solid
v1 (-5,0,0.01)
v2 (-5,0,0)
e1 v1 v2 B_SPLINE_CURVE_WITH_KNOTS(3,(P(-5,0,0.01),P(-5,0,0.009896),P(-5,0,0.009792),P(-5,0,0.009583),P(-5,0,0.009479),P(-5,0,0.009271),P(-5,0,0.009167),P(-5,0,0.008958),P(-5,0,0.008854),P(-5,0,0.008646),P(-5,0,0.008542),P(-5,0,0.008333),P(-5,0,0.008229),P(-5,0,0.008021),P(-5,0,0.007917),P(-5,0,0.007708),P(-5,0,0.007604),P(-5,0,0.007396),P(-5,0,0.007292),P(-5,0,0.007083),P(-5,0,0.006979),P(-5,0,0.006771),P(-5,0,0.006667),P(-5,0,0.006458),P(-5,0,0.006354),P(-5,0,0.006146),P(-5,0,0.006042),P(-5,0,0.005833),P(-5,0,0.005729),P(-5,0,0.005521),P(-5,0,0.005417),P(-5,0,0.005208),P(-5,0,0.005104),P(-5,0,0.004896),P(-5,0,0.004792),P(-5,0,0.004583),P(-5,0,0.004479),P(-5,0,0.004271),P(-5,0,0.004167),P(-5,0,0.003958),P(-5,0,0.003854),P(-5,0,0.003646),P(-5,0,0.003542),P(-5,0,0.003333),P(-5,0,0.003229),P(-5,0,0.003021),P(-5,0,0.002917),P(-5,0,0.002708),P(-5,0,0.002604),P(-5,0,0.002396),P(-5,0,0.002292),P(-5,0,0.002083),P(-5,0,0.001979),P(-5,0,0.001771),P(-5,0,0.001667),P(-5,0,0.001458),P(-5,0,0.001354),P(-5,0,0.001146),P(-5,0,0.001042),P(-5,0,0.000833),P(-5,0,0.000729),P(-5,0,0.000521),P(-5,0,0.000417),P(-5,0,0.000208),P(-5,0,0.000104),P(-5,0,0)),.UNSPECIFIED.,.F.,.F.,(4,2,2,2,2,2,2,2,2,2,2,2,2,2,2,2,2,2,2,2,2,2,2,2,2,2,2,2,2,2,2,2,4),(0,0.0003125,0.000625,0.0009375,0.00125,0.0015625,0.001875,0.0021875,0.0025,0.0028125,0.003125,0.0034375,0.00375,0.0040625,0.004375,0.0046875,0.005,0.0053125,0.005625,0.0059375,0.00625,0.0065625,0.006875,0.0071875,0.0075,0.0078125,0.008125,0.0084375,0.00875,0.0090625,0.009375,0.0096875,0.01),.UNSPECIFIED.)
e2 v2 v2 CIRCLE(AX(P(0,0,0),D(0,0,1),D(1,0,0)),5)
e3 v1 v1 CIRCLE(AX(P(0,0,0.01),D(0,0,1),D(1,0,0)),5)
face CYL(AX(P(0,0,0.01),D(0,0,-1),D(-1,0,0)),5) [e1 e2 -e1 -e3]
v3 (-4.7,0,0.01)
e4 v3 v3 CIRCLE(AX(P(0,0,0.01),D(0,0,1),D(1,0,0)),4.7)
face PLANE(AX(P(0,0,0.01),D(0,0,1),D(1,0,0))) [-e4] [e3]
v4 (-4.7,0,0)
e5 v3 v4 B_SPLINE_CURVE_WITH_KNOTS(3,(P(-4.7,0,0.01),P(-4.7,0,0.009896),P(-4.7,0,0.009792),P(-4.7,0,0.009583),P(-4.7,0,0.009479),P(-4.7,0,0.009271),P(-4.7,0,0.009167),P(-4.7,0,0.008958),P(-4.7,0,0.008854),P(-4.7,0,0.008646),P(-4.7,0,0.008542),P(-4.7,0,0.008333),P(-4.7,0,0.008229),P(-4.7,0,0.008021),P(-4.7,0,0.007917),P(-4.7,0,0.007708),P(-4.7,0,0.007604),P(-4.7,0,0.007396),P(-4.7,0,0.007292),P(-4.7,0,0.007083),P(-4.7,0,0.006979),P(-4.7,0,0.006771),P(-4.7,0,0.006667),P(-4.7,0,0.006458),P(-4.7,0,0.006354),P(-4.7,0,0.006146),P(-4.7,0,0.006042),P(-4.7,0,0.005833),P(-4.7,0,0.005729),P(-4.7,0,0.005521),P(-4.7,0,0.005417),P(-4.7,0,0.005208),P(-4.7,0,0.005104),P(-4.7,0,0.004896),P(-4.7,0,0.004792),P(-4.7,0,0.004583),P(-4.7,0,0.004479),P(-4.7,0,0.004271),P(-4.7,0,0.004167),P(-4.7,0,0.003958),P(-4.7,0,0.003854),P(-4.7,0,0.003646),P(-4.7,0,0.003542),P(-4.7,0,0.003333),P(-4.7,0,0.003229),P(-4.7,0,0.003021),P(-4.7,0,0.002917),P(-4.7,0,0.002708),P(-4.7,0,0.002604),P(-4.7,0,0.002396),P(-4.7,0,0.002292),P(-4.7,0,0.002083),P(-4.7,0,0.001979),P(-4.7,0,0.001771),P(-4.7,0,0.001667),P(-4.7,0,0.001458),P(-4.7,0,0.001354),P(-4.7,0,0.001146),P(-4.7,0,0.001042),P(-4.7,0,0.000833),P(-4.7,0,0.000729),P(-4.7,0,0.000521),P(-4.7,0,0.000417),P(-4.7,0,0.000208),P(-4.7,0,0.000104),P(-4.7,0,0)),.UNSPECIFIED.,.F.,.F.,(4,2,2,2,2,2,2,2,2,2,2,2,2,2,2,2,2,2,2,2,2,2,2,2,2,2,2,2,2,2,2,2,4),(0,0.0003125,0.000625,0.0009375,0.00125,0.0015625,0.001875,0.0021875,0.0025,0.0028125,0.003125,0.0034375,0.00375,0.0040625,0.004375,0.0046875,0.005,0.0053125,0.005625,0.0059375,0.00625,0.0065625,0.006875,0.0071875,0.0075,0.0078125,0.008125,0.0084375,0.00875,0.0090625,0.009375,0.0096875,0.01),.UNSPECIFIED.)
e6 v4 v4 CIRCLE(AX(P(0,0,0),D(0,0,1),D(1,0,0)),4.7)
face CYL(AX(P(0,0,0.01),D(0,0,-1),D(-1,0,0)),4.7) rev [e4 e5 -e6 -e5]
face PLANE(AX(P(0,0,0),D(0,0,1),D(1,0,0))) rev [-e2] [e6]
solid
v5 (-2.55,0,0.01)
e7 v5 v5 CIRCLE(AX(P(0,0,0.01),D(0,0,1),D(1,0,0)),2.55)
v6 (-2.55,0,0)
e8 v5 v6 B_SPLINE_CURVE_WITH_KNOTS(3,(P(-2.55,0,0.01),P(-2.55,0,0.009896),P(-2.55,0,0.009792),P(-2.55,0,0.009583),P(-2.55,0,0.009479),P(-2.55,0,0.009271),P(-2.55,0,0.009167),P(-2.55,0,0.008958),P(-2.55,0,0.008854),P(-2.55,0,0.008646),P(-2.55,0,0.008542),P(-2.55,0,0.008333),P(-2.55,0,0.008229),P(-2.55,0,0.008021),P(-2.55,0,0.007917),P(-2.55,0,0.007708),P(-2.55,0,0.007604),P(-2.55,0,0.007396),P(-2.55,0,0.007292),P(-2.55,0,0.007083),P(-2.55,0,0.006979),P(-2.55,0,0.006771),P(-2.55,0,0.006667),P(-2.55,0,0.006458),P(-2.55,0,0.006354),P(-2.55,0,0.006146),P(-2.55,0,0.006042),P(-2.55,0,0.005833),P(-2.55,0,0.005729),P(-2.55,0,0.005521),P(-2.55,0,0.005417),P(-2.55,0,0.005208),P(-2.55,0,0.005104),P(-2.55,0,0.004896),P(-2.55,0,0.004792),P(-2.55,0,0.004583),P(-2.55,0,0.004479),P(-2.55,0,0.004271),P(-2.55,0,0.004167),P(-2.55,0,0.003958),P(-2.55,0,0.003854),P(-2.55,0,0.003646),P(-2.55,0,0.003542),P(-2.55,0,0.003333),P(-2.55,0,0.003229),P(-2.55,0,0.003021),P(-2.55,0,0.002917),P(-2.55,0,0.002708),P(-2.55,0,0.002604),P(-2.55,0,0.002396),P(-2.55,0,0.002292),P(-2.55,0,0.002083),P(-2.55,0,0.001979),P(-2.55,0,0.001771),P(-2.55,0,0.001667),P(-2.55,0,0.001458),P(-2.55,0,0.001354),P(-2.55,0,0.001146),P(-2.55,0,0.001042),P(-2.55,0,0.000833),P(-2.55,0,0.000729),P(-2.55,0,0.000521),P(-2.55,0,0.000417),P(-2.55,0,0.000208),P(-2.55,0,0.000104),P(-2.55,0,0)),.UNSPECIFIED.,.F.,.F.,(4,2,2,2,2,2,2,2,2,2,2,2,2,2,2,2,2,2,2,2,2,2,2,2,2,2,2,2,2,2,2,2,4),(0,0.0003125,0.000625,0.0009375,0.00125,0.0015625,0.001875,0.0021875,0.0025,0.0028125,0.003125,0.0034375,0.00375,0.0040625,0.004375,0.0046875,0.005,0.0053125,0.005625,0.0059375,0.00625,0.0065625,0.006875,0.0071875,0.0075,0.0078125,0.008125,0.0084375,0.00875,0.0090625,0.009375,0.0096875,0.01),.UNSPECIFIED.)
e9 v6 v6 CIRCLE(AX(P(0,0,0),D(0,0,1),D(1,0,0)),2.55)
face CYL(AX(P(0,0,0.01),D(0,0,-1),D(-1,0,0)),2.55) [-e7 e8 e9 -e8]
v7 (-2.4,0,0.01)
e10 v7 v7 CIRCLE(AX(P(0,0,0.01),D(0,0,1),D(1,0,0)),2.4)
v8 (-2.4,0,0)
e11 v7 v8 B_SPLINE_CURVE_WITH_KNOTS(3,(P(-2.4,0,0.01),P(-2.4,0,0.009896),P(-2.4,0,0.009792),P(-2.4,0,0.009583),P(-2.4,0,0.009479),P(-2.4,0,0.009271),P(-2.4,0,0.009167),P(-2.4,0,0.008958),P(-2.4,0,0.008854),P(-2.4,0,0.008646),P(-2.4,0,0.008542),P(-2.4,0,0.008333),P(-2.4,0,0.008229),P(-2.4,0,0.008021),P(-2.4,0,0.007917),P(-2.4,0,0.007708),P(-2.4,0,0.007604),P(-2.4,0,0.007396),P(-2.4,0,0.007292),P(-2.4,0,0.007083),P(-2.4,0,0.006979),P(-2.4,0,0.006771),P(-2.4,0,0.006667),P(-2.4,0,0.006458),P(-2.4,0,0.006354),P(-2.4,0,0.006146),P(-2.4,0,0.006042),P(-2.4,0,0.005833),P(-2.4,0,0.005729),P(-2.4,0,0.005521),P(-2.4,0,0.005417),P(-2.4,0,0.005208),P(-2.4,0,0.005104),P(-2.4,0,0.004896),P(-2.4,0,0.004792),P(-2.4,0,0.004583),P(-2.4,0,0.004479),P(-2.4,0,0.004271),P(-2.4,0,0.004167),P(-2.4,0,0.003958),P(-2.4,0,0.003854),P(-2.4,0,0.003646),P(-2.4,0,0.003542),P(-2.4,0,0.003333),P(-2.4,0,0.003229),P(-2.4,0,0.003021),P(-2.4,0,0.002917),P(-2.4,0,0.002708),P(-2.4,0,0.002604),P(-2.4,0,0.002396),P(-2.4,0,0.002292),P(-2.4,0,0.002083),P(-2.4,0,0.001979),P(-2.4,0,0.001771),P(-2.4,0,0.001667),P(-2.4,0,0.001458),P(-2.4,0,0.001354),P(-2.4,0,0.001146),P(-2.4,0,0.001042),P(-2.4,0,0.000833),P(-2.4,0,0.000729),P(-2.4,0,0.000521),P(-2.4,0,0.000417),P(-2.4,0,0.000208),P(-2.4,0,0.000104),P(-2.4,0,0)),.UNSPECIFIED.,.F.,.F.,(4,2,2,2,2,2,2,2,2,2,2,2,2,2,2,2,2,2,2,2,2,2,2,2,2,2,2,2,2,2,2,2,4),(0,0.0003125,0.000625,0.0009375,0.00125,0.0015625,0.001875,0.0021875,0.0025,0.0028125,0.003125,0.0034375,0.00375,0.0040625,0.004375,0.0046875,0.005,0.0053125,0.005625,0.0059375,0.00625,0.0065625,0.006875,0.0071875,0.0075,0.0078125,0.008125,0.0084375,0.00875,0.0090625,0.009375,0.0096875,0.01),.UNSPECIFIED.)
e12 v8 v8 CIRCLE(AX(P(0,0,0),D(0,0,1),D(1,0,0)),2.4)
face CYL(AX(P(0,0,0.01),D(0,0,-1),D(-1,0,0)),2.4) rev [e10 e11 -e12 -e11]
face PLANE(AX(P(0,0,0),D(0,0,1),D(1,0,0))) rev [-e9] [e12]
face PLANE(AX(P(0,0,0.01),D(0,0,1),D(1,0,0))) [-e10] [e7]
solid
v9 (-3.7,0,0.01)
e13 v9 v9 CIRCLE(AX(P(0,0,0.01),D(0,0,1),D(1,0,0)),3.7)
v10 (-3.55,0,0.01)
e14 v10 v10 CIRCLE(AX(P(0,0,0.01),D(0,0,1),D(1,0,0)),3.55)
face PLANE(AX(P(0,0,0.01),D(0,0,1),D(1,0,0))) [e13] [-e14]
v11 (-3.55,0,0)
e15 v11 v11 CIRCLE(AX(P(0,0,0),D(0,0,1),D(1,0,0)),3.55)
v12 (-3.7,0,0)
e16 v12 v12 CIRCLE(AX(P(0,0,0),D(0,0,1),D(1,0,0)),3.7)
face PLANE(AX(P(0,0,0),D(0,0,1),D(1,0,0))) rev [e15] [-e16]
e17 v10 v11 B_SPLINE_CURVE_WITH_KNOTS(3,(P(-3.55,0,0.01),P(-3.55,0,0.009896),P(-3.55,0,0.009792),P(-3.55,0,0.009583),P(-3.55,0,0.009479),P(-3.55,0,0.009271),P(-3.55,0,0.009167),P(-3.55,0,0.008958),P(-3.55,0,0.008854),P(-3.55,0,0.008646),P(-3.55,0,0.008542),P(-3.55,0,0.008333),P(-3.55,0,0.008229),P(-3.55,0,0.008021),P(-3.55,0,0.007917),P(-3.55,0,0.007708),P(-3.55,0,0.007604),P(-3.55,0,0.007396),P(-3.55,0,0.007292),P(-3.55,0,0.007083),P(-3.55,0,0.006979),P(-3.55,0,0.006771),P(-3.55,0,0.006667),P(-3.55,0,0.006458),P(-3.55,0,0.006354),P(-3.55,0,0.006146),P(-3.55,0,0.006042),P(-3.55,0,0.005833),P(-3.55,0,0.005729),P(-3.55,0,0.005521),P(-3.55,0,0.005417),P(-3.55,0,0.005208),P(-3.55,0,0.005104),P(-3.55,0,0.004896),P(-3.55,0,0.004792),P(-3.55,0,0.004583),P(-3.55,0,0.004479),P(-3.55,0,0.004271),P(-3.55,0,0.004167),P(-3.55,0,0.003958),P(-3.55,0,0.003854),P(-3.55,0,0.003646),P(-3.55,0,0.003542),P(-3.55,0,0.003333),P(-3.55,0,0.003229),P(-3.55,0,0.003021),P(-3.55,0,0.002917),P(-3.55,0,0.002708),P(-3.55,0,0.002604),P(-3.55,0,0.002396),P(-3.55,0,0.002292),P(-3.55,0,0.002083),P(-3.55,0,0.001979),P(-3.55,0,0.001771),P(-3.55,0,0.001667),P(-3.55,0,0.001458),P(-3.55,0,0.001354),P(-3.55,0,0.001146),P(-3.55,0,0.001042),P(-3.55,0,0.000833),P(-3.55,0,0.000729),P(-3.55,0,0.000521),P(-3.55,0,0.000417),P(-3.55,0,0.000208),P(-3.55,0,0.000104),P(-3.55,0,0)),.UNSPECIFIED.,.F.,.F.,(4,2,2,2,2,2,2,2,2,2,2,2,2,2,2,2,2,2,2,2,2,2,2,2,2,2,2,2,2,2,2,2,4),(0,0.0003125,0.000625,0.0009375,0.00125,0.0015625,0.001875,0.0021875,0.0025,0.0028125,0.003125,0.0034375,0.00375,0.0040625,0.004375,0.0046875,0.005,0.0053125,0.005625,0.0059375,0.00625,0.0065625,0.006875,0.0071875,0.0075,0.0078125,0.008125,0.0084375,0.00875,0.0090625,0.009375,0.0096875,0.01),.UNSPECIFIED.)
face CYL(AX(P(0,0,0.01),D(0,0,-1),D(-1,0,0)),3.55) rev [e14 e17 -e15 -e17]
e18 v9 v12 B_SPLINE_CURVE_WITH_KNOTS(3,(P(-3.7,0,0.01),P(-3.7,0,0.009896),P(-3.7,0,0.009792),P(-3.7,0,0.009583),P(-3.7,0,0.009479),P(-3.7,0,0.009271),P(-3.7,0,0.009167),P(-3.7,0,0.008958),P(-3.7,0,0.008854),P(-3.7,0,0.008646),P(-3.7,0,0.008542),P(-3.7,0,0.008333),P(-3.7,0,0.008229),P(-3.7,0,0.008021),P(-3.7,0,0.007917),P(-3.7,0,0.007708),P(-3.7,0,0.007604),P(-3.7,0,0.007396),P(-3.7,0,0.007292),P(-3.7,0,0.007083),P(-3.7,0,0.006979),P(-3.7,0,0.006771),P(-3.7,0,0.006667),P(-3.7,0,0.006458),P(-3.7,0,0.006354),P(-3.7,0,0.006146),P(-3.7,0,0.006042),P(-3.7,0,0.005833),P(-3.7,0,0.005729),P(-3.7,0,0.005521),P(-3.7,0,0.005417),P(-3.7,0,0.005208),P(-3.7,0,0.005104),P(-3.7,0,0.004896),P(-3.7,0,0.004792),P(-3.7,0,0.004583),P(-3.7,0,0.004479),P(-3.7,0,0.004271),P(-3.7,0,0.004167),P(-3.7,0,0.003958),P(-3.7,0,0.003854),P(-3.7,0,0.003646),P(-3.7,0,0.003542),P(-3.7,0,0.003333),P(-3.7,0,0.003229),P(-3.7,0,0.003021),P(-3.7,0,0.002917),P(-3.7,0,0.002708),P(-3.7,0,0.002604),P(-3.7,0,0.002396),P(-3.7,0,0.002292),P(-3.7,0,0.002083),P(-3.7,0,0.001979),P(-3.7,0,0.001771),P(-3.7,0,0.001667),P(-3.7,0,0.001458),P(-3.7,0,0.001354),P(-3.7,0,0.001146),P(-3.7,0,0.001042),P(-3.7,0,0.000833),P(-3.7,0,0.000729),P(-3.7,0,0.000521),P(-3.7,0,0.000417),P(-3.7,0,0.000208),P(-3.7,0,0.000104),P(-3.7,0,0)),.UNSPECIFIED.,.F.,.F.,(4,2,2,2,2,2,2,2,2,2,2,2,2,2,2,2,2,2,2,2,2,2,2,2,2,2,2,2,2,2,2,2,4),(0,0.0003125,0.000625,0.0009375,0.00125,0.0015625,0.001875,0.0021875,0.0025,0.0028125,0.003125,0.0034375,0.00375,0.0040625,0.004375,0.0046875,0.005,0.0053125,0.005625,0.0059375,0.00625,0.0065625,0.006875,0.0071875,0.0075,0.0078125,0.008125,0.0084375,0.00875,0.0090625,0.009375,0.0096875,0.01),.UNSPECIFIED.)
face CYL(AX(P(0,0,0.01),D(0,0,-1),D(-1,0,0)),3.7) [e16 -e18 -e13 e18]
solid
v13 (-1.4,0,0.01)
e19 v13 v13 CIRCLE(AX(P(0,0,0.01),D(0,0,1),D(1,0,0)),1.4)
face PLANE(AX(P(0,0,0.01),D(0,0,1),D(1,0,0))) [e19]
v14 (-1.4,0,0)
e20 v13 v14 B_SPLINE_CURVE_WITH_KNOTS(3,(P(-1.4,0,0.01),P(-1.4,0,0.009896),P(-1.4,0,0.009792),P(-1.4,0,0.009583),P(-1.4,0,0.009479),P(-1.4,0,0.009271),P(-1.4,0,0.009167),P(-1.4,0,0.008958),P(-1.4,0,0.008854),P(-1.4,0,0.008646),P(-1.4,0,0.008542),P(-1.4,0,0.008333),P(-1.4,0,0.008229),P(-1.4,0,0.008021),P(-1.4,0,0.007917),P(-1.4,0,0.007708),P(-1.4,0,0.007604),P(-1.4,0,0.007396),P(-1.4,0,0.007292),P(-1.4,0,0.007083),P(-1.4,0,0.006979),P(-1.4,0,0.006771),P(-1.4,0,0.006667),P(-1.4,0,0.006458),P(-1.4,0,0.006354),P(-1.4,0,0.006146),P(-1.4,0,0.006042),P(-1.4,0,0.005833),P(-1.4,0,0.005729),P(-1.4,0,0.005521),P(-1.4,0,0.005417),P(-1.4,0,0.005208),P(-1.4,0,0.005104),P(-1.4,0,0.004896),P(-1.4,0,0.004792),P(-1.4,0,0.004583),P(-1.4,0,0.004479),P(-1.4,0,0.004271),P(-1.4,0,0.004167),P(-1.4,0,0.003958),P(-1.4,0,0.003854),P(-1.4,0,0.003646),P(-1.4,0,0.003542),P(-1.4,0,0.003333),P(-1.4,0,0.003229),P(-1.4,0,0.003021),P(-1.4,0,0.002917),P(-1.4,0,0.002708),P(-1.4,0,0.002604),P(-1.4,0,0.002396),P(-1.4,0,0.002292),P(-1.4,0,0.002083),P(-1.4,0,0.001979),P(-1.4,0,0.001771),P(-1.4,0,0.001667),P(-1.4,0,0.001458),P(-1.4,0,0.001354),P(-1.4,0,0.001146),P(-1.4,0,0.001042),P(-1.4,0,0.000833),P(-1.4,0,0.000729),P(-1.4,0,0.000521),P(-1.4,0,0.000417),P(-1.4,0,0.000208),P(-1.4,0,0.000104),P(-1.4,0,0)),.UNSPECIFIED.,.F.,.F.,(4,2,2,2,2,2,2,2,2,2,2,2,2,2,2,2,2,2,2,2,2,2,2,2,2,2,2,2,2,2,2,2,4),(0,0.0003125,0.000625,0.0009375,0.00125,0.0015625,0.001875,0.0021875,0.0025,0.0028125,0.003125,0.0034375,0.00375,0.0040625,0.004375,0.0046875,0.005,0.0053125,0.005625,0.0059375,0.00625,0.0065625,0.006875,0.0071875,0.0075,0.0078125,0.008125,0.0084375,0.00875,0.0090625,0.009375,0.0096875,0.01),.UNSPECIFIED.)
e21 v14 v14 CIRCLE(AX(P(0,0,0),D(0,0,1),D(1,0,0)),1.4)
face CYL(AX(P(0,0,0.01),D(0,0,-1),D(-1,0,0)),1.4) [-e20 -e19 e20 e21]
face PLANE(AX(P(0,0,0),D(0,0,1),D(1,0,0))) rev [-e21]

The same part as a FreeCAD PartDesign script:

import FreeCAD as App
import Part
import Sketcher

V = App.Vector
Q = App.Units.Quantity

doc = App.newDocument("Part")
body = doc.addObject("PartDesign::Body", "Body")

sketch1 = doc.addObject("Sketcher::SketchObject", "Sketch")
body.addObject(sketch1)
sketch1.AttachmentSupport = (doc.XY_Plane, [""])
sketch1.MapMode = "FlatFace"
sketch1.addGeometry([
    Part.Circle(V(0, 0, 0), V(0, 0, 1), 5),
    Part.Circle(V(0, 0, 0), V(0, 0, 1), 4.7),
], False)
sketch1.addConstraint([
    Sketcher.Constraint("Coincident", 0, 3, -1, 1),
    Sketcher.Constraint("Coincident", 1, 3, -1, 1),
    Sketcher.Constraint("Diameter", 0, Q("10 mm")),
    Sketcher.Constraint("Diameter", 1, Q("9.4 mm")),
])
pad1 = doc.addObject("PartDesign::Pad", "Pad")
body.addObject(pad1)
pad1.Profile = sketch1
pad1.Length = 0.01
body2 = doc.addObject("PartDesign::Body", "Body001")

sketch2 = doc.addObject("Sketcher::SketchObject", "Sketch001")
body2.addObject(sketch2)
sketch2.AttachmentSupport = (doc.getObject("XY_Plane001"), [""])
sketch2.MapMode = "FlatFace"
sketch2.addGeometry([
    Part.Circle(V(0, 0, 0), V(0, 0, 1), 3.7),
    Part.Circle(V(0, 0, 0), V(0, 0, 1), 3.55),
], False)
sketch2.addConstraint([
    Sketcher.Constraint("Coincident", 0, 3, -1, 1),
    Sketcher.Constraint("Coincident", 1, 3, -1, 1),
    Sketcher.Constraint("Diameter", 0, Q("7.4 mm")),
    Sketcher.Constraint("Diameter", 1, Q("7.1 mm")),
])
pad2 = doc.addObject("PartDesign::Pad", "Pad001")
body2.addObject(pad2)
pad2.Profile = sketch2
pad2.Length = 0.01
body3 = doc.addObject("PartDesign::Body", "Body002")

sketch3 = doc.addObject("Sketcher::SketchObject", "Sketch002")
body3.addObject(sketch3)
sketch3.AttachmentSupport = (doc.getObject("XY_Plane002"), [""])
sketch3.MapMode = "FlatFace"
sketch3.addGeometry([
    Part.Circle(V(0, 0, 0), V(0, 0, 1), 2.55),
    Part.Circle(V(0, 0, 0), V(0, 0, 1), 2.4),
], False)
sketch3.addConstraint([
    Sketcher.Constraint("Coincident", 0, 3, -1, 1),
    Sketcher.Constraint("Coincident", 1, 3, -1, 1),
    Sketcher.Constraint("Diameter", 0, Q("5.1 mm")),
    Sketcher.Constraint("Diameter", 1, Q("4.8 mm")),
])
pad3 = doc.addObject("PartDesign::Pad", "Pad002")
body3.addObject(pad3)
pad3.Profile = sketch3
pad3.Length = 0.01
body4 = doc.addObject("PartDesign::Body", "Body003")

sketch4 = doc.addObject("Sketcher::SketchObject", "Sketch003")
body4.addObject(sketch4)
sketch4.AttachmentSupport = (doc.getObject("XY_Plane003"), [""])
sketch4.MapMode = "FlatFace"
sketch4.addGeometry(Part.Circle(V(0, 0, 0), V(0, 0, 1), 1.4), False)
sketch4.addConstraint([
    Sketcher.Constraint("Coincident", 0, 3, -1, 1),
    Sketcher.Constraint("Diameter", 0, Q("2.8 mm")),
])
pad4 = doc.addObject("PartDesign::Pad", "Pad003")
body4.addObject(pad4)
pad4.Profile = sketch4
pad4.Length = 0.01

doc.recompute()
